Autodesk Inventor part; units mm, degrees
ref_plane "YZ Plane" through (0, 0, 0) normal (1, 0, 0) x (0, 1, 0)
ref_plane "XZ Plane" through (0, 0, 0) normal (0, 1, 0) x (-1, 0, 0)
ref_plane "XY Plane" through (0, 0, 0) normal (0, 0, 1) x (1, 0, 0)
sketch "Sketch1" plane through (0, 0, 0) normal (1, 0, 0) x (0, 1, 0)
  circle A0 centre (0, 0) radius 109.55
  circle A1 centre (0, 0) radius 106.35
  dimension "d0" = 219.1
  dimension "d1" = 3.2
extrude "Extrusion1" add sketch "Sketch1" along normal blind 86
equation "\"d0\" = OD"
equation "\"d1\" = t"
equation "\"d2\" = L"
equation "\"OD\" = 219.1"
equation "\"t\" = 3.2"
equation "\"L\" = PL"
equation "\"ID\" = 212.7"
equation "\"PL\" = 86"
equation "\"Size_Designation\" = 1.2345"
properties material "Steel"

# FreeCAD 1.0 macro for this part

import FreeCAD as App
import Part
import Sketcher

V = App.Vector
Q = App.Units.Quantity

doc = App.newDocument("Part")
body = doc.addObject("PartDesign::Body", "Body")

sketch1 = body.newObject("Sketcher::SketchObject", "Sketch")
sketch1.AttachmentSupport = (doc.getObject("YZ_Plane"), [""])
sketch1.MapMode = "FlatFace"
sketch1.addGeometry(Part.Circle(V(0, 0, 0), V(0, 0, 1), 109.55), False)
sketch1.addGeometry(Part.Circle(V(0, 0, 0), V(0, 0, 1), 106.35), False)
sketch1.addConstraint(Sketcher.Constraint("Coincident", 0, 3, -1, 1))
sketch1.addConstraint(Sketcher.Constraint("Coincident", 1, 3, -1, 1))
sketch1.addConstraint(Sketcher.Constraint("Diameter", 0, Q("219.1 mm")))
sketch1.addConstraint(Sketcher.Constraint("Diameter", 1, Q("212.7 mm")))
pad1 = body.newObject("PartDesign::Pad", "Pad")
pad1.Profile = sketch1
pad1.Length = 86

doc.recompute()
